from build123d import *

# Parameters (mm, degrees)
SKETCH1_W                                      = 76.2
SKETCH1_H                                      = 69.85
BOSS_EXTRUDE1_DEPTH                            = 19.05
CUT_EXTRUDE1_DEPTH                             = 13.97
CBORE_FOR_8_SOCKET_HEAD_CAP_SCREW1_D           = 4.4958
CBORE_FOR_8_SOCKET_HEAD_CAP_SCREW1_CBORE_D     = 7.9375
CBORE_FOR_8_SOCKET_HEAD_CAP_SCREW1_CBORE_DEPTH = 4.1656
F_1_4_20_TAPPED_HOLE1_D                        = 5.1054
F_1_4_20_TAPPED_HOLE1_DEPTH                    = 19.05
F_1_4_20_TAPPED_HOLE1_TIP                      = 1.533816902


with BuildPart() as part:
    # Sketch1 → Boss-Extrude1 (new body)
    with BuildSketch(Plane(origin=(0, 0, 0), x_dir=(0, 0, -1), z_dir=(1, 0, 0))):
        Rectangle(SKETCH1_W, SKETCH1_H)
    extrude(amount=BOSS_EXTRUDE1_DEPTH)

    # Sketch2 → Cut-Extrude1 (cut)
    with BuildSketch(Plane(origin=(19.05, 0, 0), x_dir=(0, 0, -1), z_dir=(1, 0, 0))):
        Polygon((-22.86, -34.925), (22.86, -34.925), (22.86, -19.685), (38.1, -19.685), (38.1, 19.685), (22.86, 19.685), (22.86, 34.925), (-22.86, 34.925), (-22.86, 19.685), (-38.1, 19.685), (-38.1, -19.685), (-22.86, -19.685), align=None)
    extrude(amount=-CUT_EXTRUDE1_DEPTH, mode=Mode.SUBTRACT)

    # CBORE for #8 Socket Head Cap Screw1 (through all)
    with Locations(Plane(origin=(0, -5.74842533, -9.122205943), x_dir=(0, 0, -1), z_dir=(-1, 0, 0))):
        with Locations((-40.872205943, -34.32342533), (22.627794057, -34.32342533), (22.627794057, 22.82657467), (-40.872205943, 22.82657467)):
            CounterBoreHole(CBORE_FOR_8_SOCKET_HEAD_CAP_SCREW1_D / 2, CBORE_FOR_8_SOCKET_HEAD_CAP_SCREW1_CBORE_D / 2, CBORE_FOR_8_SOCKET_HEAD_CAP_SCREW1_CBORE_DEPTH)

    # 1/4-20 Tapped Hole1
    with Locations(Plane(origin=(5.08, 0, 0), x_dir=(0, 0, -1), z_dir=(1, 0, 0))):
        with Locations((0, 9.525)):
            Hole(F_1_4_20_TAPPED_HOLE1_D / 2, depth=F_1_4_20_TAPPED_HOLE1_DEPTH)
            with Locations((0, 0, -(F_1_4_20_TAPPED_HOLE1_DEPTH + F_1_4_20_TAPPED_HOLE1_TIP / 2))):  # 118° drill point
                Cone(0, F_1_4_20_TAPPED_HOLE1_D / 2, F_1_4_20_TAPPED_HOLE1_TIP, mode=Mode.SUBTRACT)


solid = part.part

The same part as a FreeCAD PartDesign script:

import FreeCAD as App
import Part
import Sketcher
from FreeCAD import Vector
Q = App.Units.Quantity


def add_polygon(sketch, points):
    """Adds a closed chain of lines whose ends are joined by coincident constraints."""
    first, n = sketch.GeometryCount, len(points)
    for a, b in zip(points, points[1:] + points[:1]):
        sketch.addGeometry(Part.LineSegment(App.Vector(*a, 0), App.Vector(*b, 0)), False)
    for i in range(n):
        sketch.addConstraint(Sketcher.Constraint("Coincident", first + i, 2, first + (i + 1) % n, 1))

doc = App.newDocument("Part")
params = doc.addObject("Spreadsheet::Sheet", "Params")
for row, (alias, value) in enumerate([
    ("sketch1_height", "3 in"),
    ("sketch1_width", "2.75 in"),
    ("pad1_length", "0.75 in"),
    ("sketch2_width", "0.6 in"),
    ("sketch2_height", "1.8 in"),
    ("sketch2_width2", "1.55 in"),
    ("pocket1_length", "0.55 in"),
    ("sketch3_diameter", "0.177 in"),
    ("hole_diameter", "0.177 in"),
    ("hole_cbore_diameter", "0.3125 in"),
    ("hole_cbore_depth", "0.164 in"),
    ("sketch4_diameter", "0.201 in"),
    ("hole2_diameter", "0.201 in"),
    ("hole2_depth", "0.75 in"),
], start=1):
    params.set(f"A{row}", alias)
    params.set(f"B{row}", "=" + value)
    params.setAlias(f"B{row}", alias)

body = doc.addObject("PartDesign::Body", "Body")

# Sketch on YZ plane
sketch1 = body.newObject("Sketcher::SketchObject", "Sketch")
sketch1.AttachmentSupport = (doc.getObject("YZ_Plane"), [""])
sketch1.MapMode = "FlatFace"
add_polygon(sketch1, [(34.925, 38.1), (-34.925, 38.1), (-34.925, -38.1), (34.925, -38.1)])  # lines 0-3
sketch1.addConstraint([
    Sketcher.Constraint("Horizontal", 0),
    Sketcher.Constraint("Vertical", 1),
    Sketcher.Constraint("Horizontal", 2),
    Sketcher.Constraint("Vertical", 3),
    Sketcher.Constraint("Symmetric", 0, 2, 2, 2, -1, 1),
    Sketcher.Constraint("DistanceY", 1, 2, 1, 1, Q("3 in")),
    Sketcher.Constraint("DistanceX", 0, 2, 0, 1, Q("2.75 in")),
])
sketch1.setExpression("Constraints[9]", "Params.sketch1_height")
sketch1.setExpression("Constraints[10]", "Params.sketch1_width")
pad1 = body.newObject("PartDesign::Pad", "Pad")
pad1.Profile = sketch1
pad1.setExpression("Length", "Params.pad1_length")

# Sketch on YZ plane
sketch2 = body.newObject("Sketcher::SketchObject", "Sketch001")
sketch2.AttachmentSupport = (doc.getObject("YZ_Plane"), [""])
sketch2.MapMode = "FlatFace"
sketch2.AttachmentOffset = App.Placement(Vector(0, 0, 0.75 * 25.4), App.Rotation())
add_polygon(sketch2, [(-34.925, 22.86), (-34.925, -22.86), (-19.685, -22.86), (-19.685, -38.1), (19.685, -38.1), (19.685, -22.86), (34.925, -22.86), (34.925, 22.86), (19.685, 22.86), (19.685, 38.1), (-19.685, 38.1), (-19.685, 22.86)])  # lines 0-11
sketch2.addConstraint([
    Sketcher.Constraint("Vertical", 0),
    Sketcher.Constraint("Horizontal", 1),
    Sketcher.Constraint("Vertical", 2),
    Sketcher.Constraint("Horizontal", 3),
    Sketcher.Constraint("Vertical", 4),
    Sketcher.Constraint("Horizontal", 5),
    Sketcher.Constraint("Vertical", 6),
    Sketcher.Constraint("Horizontal", 7),
    Sketcher.Constraint("Vertical", 8),
    Sketcher.Constraint("Horizontal", 9),
    Sketcher.Constraint("Vertical", 10),
    Sketcher.Constraint("Horizontal", 11),
    Sketcher.Constraint("Symmetric", 0, 2, 6, 2, -1, 1),
    Sketcher.Constraint("Symmetric", 2, 2, 8, 2, -1, 1),
    Sketcher.Constraint("Symmetric", 4, 2, 10, 2, -1, 1),
    Sketcher.Constraint("Symmetric", 1, 2, 4, 2, -2),
    Sketcher.Constraint("Equal", 11, 2),
    Sketcher.Constraint("DistanceX", 1, 1, 1, 2, Q("0.6 in")),
    Sketcher.Constraint("DistanceY", 0, 2, 0, 1, Q("1.8 in")),
    Sketcher.Constraint("DistanceX", 3, 1, 3, 2, Q("1.55 in")),
])
sketch2.setExpression("Constraints[29]", "Params.sketch2_width")
sketch2.setExpression("Constraints[30]", "Params.sketch2_height")
sketch2.setExpression("Constraints[31]", "Params.sketch2_width2")
pocket1 = body.newObject("PartDesign::Pocket", "Pocket")
pocket1.Profile = sketch2
pocket1.setExpression("Length", "Params.pocket1_length")

# Sketch on YZ plane
sketch3 = body.newObject("Sketcher::SketchObject", "Sketch002")
sketch3.AttachmentSupport = (doc.getObject("YZ_Plane"), [""])
sketch3.MapMode = "FlatFace"
sketch3.addGeometry([
    Part.Circle(Vector(28.575, 31.75, 0), Vector(0, 0, 1), 2.2479),
    Part.Circle(Vector(28.575, -31.75, 0), Vector(0, 0, 1), 2.2479),
    Part.Circle(Vector(-28.575, -31.75, 0), Vector(0, 0, 1), 2.2479),
    Part.Circle(Vector(-28.575, 31.75, 0), Vector(0, 0, 1), 2.2479),
], False)
sketch3.addConstraint([
    Sketcher.Constraint("Equal", 0, 1),
    Sketcher.Constraint("Equal", 1, 2),
    Sketcher.Constraint("Equal", 2, 3),
    Sketcher.Constraint("Symmetric", 0, 3, 2, 3, -1, 1),
    Sketcher.Constraint("Symmetric", 1, 3, 3, 3, -1, 1),
    Sketcher.Constraint("Symmetric", 1, 3, 2, 3, -2),
    Sketcher.Constraint("Diameter", 0, Q("0.177 in")),
    Sketcher.Constraint("DistanceY", 1, 3, 0, 3, Q("2.5 in")),
    Sketcher.Constraint("DistanceX", 2, 3, 1, 3, Q("2.25 in")),
])
sketch3.setExpression("Constraints[6]", "Params.sketch3_diameter")
doc.recompute()
hole = body.newObject("PartDesign::Hole", "Hole")
hole.Profile = sketch3
hole.ThreadType = "None"
hole.setExpression("Diameter", "Params.hole_diameter")
hole.DepthType = "ThroughAll"
hole.HoleCutType = "Counterbore"
hole.setExpression("HoleCutDiameter", "Params.hole_cbore_diameter")
hole.setExpression("HoleCutDepth", "Params.hole_cbore_depth")
hole.Reversed = True

# Sketch on YZ plane
sketch4 = body.newObject("Sketcher::SketchObject", "Sketch003")
sketch4.AttachmentSupport = (doc.getObject("YZ_Plane"), [""])
sketch4.MapMode = "FlatFace"
sketch4.AttachmentOffset = App.Placement(Vector(0, 0, 0.2 * 25.4), App.Rotation())
sketch4.addGeometry(Part.Circle(Vector(9.525, 0, 0), Vector(0, 0, 1), 2.5527), False)
sketch4.addConstraint([
    Sketcher.Constraint("PointOnObject", 0, 3, -1),
    Sketcher.Constraint("Diameter", 0, Q("0.201 in")),
    Sketcher.Constraint("DistanceX", -1, 1, 0, 3, Q("0.375 in")),
])
sketch4.setExpression("Constraints[1]", "Params.sketch4_diameter")
doc.recompute()
hole2 = body.newObject("PartDesign::Hole", "Hole001")
hole2.Profile = sketch4
hole2.ThreadType = "None"
hole2.setExpression("Diameter", "Params.hole2_diameter")
hole2.DepthType = "Dimension"
hole2.setExpression("Depth", "Params.hole2_depth")
hole2.DrillPoint = "Angled"
hole2.DrillPointAngle = 118

doc.recompute()
